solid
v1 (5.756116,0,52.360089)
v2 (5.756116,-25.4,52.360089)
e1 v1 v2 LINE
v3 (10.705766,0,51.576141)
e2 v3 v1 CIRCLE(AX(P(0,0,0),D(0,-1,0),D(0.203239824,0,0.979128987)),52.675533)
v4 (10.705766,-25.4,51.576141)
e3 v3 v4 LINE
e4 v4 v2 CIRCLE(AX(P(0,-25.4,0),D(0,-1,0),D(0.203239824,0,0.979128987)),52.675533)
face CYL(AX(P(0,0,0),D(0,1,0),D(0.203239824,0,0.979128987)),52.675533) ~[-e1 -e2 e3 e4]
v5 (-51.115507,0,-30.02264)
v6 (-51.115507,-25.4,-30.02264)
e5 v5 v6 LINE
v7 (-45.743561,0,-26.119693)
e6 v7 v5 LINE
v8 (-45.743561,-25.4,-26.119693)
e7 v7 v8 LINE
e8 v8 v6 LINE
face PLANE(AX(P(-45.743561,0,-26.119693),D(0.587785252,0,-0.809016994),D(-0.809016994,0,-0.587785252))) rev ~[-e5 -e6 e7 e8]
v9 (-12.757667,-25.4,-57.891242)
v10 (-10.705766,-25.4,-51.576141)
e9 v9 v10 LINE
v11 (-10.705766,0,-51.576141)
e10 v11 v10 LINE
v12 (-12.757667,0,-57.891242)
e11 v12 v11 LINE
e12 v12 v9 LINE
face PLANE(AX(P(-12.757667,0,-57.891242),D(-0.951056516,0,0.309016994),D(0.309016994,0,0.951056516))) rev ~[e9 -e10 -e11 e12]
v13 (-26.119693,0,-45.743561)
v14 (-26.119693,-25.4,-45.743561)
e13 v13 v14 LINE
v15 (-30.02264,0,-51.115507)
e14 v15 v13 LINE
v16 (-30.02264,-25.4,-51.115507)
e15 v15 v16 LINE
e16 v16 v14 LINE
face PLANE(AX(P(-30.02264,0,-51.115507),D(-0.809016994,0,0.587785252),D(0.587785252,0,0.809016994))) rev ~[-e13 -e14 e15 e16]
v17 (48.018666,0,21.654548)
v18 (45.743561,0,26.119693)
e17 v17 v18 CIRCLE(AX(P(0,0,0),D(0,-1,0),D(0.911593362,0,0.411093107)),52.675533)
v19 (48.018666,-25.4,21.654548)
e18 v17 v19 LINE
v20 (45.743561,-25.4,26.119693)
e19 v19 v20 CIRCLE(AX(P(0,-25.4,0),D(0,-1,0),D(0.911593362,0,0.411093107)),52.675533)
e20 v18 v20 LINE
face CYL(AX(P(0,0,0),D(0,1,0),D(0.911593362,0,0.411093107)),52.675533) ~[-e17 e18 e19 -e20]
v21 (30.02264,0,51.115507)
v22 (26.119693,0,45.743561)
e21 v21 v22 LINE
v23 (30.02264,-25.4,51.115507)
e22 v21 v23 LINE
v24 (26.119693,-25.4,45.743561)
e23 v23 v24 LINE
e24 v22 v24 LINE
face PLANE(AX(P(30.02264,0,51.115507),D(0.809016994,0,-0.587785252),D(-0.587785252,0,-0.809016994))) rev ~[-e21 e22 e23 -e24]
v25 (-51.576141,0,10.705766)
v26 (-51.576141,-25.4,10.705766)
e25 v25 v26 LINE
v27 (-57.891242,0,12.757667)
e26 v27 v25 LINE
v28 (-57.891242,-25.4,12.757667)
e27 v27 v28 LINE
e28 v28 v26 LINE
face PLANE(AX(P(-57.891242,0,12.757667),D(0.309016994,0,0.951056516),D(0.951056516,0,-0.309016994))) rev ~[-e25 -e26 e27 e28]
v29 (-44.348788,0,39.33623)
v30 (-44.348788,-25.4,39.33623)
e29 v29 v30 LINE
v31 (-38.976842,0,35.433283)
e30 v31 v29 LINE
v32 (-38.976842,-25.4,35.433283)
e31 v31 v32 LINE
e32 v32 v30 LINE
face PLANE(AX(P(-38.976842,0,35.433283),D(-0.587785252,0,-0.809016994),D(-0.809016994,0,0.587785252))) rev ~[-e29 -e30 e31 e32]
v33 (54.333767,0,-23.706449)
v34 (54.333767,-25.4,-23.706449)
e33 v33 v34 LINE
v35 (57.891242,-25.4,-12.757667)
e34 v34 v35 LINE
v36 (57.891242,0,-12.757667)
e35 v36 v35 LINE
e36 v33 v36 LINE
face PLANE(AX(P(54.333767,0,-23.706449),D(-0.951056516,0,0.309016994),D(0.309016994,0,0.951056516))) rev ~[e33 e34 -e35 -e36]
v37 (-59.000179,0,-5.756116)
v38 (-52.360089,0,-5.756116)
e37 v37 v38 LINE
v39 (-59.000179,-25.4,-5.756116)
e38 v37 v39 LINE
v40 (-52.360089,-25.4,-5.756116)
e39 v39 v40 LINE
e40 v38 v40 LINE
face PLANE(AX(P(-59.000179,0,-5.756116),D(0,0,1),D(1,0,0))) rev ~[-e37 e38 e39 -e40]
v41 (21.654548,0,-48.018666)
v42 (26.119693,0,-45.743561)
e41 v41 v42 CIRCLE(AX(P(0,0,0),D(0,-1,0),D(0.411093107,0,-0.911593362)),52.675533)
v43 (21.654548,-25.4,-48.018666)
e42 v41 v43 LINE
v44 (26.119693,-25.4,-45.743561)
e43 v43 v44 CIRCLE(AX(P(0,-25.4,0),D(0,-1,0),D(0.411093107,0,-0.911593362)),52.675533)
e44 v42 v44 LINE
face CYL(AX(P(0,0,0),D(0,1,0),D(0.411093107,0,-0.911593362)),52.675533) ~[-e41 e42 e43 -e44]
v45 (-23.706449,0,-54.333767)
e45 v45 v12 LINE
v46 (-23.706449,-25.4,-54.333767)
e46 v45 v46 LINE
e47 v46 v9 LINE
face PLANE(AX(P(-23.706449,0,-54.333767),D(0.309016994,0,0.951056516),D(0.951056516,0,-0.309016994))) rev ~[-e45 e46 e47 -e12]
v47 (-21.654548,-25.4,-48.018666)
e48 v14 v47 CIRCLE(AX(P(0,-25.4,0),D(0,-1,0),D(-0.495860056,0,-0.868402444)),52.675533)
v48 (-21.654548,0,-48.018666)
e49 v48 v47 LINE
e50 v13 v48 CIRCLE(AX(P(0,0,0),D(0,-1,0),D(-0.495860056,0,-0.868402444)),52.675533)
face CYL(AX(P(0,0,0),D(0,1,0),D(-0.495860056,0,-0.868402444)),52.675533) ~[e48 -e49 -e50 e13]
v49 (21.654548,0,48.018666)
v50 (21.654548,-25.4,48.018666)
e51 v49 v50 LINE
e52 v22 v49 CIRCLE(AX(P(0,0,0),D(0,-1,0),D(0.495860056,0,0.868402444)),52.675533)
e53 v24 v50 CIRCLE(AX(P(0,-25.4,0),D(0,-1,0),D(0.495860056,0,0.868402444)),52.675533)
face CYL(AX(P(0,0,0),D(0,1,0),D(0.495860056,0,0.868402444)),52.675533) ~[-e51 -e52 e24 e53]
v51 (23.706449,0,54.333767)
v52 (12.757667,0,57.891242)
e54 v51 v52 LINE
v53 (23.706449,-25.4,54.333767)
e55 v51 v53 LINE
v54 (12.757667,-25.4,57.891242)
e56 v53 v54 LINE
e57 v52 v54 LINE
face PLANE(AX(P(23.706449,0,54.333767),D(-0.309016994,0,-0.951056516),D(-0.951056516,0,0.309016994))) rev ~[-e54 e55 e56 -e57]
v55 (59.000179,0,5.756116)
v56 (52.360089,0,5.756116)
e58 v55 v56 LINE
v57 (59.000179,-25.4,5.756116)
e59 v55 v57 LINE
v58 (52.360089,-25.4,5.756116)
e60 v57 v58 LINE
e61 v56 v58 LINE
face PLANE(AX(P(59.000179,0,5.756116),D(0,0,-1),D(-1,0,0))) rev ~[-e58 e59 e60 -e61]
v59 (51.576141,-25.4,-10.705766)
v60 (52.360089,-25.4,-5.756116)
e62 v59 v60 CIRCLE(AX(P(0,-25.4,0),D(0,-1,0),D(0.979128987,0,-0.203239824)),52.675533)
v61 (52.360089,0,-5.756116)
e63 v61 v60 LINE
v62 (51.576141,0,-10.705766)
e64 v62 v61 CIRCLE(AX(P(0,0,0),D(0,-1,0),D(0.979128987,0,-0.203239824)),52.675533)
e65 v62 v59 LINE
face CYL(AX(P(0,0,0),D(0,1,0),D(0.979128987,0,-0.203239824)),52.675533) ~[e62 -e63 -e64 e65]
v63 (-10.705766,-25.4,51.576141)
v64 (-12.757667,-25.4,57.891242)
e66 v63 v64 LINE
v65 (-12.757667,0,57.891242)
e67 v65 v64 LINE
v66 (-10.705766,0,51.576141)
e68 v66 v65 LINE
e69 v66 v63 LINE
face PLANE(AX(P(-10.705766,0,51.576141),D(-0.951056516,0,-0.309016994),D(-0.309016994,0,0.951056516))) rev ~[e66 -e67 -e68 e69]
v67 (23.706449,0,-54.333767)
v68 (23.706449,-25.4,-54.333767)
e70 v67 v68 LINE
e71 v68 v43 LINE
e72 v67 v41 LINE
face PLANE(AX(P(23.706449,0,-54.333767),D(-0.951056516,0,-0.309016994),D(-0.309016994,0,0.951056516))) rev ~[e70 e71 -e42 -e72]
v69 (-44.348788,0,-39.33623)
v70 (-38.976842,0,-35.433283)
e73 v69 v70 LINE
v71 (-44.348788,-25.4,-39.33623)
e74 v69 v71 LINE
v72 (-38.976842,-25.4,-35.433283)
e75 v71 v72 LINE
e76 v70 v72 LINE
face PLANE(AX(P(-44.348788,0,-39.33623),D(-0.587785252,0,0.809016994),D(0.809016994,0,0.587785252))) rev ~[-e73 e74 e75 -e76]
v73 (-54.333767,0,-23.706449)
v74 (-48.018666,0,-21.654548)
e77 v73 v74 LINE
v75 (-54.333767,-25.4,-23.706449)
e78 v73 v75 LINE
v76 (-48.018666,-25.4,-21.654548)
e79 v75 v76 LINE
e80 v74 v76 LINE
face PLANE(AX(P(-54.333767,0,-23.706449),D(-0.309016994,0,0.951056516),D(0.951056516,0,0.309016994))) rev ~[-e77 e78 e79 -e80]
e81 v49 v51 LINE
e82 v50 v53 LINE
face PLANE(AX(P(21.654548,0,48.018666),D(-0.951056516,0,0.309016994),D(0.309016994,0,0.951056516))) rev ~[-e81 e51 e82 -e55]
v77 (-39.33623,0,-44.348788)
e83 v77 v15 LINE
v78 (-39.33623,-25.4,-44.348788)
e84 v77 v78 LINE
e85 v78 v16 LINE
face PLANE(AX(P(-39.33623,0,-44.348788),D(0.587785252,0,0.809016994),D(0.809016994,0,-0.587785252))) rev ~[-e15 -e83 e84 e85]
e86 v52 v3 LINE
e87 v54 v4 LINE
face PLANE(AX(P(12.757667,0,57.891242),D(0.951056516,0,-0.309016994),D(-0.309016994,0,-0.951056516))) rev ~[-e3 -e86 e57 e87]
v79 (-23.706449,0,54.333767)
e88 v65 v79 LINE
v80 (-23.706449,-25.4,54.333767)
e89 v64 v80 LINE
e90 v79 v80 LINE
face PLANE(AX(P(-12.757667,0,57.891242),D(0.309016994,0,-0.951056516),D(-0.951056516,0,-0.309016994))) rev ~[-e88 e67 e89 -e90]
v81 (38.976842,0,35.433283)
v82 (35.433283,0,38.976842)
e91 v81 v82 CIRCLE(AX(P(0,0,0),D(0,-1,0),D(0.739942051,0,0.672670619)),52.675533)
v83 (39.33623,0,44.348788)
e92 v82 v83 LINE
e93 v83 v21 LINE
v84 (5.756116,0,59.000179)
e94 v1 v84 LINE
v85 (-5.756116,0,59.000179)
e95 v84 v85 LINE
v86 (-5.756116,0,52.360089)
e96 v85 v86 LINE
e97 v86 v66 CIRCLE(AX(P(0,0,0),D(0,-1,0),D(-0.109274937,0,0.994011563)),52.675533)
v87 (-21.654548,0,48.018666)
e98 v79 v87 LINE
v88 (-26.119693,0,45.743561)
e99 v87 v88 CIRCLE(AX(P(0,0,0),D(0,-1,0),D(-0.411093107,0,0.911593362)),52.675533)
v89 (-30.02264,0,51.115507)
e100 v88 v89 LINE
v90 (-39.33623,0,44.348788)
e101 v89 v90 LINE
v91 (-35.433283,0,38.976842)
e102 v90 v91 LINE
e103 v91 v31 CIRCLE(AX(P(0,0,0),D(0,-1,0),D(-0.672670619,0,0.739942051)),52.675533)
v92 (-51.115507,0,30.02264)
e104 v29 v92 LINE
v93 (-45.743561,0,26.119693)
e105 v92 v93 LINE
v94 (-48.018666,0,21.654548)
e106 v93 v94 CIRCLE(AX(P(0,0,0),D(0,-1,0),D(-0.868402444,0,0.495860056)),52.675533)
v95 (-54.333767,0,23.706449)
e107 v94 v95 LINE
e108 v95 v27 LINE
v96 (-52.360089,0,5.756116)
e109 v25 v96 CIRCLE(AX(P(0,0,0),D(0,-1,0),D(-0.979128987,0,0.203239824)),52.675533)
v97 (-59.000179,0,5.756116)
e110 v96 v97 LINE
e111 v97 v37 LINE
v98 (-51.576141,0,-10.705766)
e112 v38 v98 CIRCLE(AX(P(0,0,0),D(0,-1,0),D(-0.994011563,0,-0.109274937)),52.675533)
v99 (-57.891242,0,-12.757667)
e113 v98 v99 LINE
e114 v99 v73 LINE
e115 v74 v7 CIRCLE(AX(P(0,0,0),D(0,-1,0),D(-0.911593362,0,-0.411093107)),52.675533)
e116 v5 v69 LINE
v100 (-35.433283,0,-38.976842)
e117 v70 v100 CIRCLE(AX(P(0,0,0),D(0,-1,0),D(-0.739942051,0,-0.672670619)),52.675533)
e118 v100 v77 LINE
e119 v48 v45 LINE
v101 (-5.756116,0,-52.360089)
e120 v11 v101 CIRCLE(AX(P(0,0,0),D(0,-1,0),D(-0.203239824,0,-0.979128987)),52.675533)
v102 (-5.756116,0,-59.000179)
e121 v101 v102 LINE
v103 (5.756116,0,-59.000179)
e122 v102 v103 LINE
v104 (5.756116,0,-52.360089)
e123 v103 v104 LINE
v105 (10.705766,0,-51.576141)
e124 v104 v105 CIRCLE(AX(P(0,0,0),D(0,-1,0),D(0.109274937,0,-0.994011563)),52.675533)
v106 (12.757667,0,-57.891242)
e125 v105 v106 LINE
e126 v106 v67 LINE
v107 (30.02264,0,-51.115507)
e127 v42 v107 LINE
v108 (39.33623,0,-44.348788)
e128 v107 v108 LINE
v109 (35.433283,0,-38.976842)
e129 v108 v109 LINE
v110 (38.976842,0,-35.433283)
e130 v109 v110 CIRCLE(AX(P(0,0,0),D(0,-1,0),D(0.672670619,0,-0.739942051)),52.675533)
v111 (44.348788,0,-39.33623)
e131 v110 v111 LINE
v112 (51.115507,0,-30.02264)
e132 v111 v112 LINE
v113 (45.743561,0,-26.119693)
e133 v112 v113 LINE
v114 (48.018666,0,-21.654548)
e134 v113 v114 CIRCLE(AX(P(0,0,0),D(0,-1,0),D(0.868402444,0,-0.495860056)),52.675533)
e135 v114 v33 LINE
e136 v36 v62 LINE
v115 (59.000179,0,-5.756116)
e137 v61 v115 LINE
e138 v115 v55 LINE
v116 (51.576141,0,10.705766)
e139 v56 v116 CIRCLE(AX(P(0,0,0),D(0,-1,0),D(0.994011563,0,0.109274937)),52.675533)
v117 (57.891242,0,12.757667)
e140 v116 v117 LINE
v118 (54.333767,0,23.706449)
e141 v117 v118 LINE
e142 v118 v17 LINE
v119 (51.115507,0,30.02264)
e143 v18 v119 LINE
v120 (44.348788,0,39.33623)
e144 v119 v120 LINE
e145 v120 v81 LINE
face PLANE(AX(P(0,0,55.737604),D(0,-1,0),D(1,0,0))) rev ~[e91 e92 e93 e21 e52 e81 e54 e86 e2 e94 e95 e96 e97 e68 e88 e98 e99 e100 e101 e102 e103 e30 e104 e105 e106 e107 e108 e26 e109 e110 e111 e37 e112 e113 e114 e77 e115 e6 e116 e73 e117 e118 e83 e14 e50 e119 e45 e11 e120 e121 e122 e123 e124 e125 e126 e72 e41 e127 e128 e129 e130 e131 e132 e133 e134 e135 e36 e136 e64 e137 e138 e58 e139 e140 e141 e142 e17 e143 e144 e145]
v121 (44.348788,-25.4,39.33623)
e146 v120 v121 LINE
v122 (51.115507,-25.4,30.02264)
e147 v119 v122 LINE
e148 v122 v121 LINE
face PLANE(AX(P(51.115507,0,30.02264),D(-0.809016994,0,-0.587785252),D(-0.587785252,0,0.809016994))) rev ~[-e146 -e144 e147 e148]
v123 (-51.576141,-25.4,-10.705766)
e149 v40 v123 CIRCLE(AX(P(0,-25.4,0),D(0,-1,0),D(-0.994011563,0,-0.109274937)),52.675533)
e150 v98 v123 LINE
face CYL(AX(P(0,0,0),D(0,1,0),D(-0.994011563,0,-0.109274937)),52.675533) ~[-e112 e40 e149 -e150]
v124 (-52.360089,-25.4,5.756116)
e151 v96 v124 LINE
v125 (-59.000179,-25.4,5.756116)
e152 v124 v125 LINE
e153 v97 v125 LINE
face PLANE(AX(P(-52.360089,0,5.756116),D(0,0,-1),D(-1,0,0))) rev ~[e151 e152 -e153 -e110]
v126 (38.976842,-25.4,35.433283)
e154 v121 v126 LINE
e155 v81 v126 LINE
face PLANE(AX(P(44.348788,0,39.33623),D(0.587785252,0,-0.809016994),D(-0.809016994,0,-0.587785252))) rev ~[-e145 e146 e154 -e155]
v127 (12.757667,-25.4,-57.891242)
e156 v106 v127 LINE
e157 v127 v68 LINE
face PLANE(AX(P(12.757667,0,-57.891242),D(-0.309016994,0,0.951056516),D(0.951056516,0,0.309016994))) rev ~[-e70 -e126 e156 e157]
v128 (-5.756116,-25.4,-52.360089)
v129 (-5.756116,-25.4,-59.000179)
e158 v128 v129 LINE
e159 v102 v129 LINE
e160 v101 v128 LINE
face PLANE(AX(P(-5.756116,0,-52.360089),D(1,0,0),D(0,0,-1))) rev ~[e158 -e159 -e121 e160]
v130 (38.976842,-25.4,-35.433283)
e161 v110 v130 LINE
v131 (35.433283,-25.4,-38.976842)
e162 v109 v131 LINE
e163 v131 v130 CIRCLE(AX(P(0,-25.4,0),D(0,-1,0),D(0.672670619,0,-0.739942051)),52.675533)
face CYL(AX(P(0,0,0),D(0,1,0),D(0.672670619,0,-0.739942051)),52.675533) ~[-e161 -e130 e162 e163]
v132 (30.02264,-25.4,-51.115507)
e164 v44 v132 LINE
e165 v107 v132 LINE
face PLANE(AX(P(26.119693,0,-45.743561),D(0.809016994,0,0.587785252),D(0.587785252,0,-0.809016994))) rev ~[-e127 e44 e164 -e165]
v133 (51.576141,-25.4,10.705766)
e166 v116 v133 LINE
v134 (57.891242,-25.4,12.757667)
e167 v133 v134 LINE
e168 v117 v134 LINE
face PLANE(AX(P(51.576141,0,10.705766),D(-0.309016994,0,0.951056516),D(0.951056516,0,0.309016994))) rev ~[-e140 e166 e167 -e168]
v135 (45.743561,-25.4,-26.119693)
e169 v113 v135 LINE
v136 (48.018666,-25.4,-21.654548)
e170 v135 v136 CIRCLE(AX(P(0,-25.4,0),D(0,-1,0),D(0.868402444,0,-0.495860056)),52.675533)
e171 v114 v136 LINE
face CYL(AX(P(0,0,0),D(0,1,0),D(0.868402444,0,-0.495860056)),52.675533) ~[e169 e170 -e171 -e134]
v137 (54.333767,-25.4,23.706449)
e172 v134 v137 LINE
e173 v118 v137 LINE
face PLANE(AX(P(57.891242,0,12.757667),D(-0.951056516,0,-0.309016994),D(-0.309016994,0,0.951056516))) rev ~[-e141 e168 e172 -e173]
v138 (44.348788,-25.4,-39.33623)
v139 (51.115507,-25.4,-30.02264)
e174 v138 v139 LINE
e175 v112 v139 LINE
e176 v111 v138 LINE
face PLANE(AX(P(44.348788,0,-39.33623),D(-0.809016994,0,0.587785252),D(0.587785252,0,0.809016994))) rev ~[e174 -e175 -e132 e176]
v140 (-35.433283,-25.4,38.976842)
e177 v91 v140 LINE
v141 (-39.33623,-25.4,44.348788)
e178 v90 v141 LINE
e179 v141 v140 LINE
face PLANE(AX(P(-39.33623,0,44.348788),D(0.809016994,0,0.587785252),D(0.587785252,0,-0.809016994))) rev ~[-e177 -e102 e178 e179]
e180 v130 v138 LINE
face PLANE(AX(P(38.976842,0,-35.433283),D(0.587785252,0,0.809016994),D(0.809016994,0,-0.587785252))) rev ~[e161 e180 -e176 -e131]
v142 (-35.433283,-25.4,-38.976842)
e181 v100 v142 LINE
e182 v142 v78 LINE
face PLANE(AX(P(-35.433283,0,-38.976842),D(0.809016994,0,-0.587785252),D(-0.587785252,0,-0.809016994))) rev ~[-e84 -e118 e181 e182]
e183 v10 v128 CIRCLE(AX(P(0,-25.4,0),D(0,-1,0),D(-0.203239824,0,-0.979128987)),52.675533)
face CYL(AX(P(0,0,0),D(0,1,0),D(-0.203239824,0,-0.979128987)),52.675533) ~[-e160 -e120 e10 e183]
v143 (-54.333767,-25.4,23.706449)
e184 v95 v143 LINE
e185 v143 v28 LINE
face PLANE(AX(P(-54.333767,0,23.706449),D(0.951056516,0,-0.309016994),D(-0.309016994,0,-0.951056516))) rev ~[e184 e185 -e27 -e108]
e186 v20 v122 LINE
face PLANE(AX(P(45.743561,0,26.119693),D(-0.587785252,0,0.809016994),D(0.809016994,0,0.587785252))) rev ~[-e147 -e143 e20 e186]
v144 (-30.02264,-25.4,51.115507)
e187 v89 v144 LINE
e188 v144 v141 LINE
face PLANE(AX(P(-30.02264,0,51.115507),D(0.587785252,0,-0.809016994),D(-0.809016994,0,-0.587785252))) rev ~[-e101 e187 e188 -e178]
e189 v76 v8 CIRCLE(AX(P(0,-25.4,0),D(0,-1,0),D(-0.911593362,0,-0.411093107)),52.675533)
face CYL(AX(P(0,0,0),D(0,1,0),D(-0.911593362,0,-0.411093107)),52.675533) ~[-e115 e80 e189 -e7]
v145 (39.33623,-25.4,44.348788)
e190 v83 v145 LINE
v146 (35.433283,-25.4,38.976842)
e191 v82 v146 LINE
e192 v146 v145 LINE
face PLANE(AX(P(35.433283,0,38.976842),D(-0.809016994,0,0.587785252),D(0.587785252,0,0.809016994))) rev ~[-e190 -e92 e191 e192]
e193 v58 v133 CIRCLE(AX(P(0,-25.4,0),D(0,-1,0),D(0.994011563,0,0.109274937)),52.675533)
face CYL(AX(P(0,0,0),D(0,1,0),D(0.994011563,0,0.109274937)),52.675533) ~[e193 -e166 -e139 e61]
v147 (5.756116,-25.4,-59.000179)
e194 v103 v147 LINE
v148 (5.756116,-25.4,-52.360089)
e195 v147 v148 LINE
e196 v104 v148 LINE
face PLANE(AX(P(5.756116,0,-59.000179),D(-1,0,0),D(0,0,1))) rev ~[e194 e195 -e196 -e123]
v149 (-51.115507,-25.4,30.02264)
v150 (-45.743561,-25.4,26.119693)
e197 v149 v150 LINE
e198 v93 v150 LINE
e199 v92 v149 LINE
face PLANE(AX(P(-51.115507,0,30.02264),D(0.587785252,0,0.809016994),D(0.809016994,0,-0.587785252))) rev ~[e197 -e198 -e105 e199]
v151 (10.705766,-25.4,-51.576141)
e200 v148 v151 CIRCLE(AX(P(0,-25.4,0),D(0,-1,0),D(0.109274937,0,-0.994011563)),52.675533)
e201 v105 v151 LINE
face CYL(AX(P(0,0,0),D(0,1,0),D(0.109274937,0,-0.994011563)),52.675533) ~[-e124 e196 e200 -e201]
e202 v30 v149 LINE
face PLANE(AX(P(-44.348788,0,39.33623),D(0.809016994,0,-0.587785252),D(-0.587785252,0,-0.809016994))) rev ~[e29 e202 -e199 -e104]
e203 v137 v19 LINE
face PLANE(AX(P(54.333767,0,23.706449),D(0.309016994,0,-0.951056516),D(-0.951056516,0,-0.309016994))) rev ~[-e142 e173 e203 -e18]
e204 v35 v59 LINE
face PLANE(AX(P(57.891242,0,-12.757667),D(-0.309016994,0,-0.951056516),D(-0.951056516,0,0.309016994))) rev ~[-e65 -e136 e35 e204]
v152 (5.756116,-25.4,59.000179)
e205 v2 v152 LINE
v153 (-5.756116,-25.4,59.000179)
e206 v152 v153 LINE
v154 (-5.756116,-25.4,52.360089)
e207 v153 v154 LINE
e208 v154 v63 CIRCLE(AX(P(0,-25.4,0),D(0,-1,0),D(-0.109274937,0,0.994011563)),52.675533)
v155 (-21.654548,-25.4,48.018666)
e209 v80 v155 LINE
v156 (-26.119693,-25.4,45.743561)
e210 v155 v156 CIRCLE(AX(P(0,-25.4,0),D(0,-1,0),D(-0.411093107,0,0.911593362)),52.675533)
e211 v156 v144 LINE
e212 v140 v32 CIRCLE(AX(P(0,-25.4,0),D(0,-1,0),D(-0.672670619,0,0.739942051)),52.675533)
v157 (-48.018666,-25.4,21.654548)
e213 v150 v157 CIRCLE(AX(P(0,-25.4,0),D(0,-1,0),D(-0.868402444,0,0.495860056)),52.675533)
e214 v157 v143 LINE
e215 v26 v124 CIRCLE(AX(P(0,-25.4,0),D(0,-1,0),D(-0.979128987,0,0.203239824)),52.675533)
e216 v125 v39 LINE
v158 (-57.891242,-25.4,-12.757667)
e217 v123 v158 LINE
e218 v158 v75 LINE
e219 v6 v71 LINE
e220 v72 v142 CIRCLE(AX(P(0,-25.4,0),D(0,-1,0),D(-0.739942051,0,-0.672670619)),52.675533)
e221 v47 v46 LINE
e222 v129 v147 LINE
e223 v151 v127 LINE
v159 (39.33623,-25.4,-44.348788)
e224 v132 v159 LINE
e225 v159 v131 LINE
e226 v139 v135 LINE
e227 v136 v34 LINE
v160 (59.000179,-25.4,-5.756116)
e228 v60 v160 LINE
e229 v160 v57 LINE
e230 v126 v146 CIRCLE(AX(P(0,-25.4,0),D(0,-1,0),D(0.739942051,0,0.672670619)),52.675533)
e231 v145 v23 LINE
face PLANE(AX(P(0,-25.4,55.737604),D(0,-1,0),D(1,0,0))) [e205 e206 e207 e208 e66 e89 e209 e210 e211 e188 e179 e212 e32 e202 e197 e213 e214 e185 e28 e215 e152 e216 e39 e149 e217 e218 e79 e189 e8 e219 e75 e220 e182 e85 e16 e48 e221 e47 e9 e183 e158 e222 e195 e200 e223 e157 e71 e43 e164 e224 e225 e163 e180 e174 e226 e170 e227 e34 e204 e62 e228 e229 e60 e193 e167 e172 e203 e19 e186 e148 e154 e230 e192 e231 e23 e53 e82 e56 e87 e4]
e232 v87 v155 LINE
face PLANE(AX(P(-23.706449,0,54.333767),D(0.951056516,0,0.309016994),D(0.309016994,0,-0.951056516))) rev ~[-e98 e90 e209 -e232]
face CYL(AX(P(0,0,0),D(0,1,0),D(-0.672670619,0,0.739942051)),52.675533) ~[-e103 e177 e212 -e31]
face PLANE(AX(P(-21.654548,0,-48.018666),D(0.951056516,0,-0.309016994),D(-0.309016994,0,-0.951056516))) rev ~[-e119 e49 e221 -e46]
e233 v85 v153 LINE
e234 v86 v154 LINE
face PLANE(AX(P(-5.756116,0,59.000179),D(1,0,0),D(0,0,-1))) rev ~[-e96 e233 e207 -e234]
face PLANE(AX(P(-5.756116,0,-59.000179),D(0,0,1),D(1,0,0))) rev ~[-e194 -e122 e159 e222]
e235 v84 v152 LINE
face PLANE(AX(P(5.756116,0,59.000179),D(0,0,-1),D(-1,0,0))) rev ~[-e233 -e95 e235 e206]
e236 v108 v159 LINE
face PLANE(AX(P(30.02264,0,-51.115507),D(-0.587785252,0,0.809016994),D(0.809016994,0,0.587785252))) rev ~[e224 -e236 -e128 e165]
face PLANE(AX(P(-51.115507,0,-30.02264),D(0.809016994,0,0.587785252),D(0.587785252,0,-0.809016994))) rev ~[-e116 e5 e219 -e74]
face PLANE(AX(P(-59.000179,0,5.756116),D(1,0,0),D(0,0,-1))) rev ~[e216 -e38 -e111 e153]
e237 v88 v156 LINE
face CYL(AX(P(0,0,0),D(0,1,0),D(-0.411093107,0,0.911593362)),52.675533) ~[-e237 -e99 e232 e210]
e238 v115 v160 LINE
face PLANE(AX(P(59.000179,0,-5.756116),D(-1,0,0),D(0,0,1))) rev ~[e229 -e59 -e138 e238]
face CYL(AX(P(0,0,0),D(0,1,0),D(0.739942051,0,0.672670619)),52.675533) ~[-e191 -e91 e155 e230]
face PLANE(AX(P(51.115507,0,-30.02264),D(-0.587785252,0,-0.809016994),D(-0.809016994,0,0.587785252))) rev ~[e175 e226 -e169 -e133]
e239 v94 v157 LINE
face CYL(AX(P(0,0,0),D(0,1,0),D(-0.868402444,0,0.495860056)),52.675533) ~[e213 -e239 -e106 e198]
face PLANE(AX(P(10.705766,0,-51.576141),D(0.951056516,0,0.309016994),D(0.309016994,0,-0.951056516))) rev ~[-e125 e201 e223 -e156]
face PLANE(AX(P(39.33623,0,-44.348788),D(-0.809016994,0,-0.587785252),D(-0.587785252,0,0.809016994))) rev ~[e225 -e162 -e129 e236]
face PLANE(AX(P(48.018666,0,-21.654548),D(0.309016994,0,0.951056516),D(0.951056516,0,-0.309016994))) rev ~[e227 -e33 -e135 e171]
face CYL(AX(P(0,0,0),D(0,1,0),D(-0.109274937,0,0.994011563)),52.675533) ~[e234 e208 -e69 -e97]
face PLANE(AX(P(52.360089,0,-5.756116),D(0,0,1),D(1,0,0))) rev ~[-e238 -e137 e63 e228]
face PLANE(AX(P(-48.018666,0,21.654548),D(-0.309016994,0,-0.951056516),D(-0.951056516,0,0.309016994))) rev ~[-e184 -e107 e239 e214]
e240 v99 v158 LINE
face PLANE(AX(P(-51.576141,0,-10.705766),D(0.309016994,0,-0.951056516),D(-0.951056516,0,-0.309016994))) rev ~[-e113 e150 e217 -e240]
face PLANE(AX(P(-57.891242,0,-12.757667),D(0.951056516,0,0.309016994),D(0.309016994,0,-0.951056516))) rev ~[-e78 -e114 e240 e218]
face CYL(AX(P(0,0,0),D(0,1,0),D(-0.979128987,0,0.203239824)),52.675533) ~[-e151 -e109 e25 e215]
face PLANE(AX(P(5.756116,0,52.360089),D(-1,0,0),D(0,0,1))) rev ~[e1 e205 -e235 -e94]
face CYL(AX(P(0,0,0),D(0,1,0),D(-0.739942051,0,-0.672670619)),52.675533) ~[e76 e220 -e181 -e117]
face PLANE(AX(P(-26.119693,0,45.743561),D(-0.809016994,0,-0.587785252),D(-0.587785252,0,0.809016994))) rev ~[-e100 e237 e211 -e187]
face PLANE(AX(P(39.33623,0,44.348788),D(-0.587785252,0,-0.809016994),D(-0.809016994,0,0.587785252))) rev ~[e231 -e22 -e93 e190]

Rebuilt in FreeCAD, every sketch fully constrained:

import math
import FreeCAD as App
import Part
import Sketcher
Q = App.Units.Quantity

doc = App.newDocument("Part")
params = doc.addObject("Spreadsheet::Sheet", "Params")
for row, (alias, value) in enumerate([
    ("pad1_length", "1 in"),
], start=1):
    params.set(f"A{row}", alias)
    params.set(f"B{row}", "=" + value)
    params.setAlias(f"B{row}", alias)

body = doc.addObject("PartDesign::Body", "Body")

sketch1 = doc.addObject("Sketcher::SketchObject", "Sketch")
body.addObject(sketch1)
sketch1.AttachmentSupport = (doc.XZ_Plane, [""])
sketch1.MapMode = "FlatFace"
sketch1.addGeometry(Part.LineSegment(App.Vector(6, 52, 0), App.Vector(6, 59, 0)), False)
sketch1.addGeometry(Part.LineSegment(App.Vector(6, 59, 0), App.Vector(-6, 59, 0)), False)
sketch1.addGeometry(Part.LineSegment(App.Vector(-6, 59, 0), App.Vector(-6, 52, 0)), False)
sketch1.addGeometry(Part.ArcOfCircle(Part.Circle(App.Vector(0, 0, 0), App.Vector(0, 0, 1), 53), math.radians(96.27), math.radians(101.73)), False)
sketch1.addGeometry(Part.LineSegment(App.Vector(-11, 52, 0), App.Vector(-13, 58, 0)), False)
sketch1.addGeometry(Part.LineSegment(App.Vector(-13, 58, 0), App.Vector(-24, 54, 0)), False)
sketch1.addGeometry(Part.LineSegment(App.Vector(-24, 54, 0), App.Vector(-22, 48, 0)), False)
sketch1.addGeometry(Part.ArcOfCircle(Part.Circle(App.Vector(0, 0, 0), App.Vector(0, 0, 1), 53), math.radians(114.27), math.radians(119.73)), False)
sketch1.addGeometry(Part.LineSegment(App.Vector(-26, 46, 0), App.Vector(-30, 51, 0)), False)
sketch1.addGeometry(Part.LineSegment(App.Vector(-30, 51, 0), App.Vector(-39, 44, 0)), False)
sketch1.addGeometry(Part.LineSegment(App.Vector(-39, 44, 0), App.Vector(-35, 39, 0)), False)
sketch1.addGeometry(Part.ArcOfCircle(Part.Circle(App.Vector(0, 0, 0), App.Vector(0, 0, 1), 53), math.radians(132.27), math.radians(137.73)), False)
sketch1.addGeometry(Part.LineSegment(App.Vector(-39, 35, 0), App.Vector(-44, 39, 0)), False)
sketch1.addGeometry(Part.LineSegment(App.Vector(-44, 39, 0), App.Vector(-51, 30, 0)), False)
sketch1.addGeometry(Part.LineSegment(App.Vector(-51, 30, 0), App.Vector(-46, 26, 0)), False)
sketch1.addGeometry(Part.ArcOfCircle(Part.Circle(App.Vector(0, 0, 0), App.Vector(0, 0, 1), 53), math.radians(150.27), math.radians(155.73)), False)
sketch1.addGeometry(Part.LineSegment(App.Vector(-48, 22, 0), App.Vector(-54, 24, 0)), False)
sketch1.addGeometry(Part.LineSegment(App.Vector(-54, 24, 0), App.Vector(-58, 13, 0)), False)
sketch1.addGeometry(Part.LineSegment(App.Vector(-58, 13, 0), App.Vector(-52, 11, 0)), False)
sketch1.addGeometry(Part.ArcOfCircle(Part.Circle(App.Vector(0, 0, 0), App.Vector(0, 0, 1), 53), math.radians(168.27), math.radians(173.73)), False)
sketch1.addGeometry(Part.LineSegment(App.Vector(-52, 6, 0), App.Vector(-59, 6, 0)), False)
sketch1.addGeometry(Part.LineSegment(App.Vector(-59, 6, 0), App.Vector(-59, -6, 0)), False)
sketch1.addGeometry(Part.LineSegment(App.Vector(-59, -6, 0), App.Vector(-52, -6, 0)), False)
sketch1.addGeometry(Part.ArcOfCircle(Part.Circle(App.Vector(0, 0, 0), App.Vector(0, 0, 1), 53), math.radians(-173.73), math.radians(-168.27)), False)
sketch1.addGeometry(Part.LineSegment(App.Vector(-52, -11, 0), App.Vector(-58, -13, 0)), False)
sketch1.addGeometry(Part.LineSegment(App.Vector(-58, -13, 0), App.Vector(-54, -24, 0)), False)
sketch1.addGeometry(Part.LineSegment(App.Vector(-54, -24, 0), App.Vector(-48, -22, 0)), False)
sketch1.addGeometry(Part.ArcOfCircle(Part.Circle(App.Vector(0, 0, 0), App.Vector(0, 0, 1), 53), math.radians(-155.73), math.radians(-150.27)), False)
sketch1.addGeometry(Part.LineSegment(App.Vector(-46, -26, 0), App.Vector(-51, -30, 0)), False)
sketch1.addGeometry(Part.LineSegment(App.Vector(-51, -30, 0), App.Vector(-44, -39, 0)), False)
sketch1.addGeometry(Part.LineSegment(App.Vector(-44, -39, 0), App.Vector(-39, -35, 0)), False)
sketch1.addGeometry(Part.ArcOfCircle(Part.Circle(App.Vector(0, 0, 0), App.Vector(0, 0, 1), 53), math.radians(-137.73), math.radians(-132.27)), False)
sketch1.addGeometry(Part.LineSegment(App.Vector(-35, -39, 0), App.Vector(-39, -44, 0)), False)
sketch1.addGeometry(Part.LineSegment(App.Vector(-39, -44, 0), App.Vector(-30, -51, 0)), False)
sketch1.addGeometry(Part.LineSegment(App.Vector(-30, -51, 0), App.Vector(-26, -46, 0)), False)
sketch1.addGeometry(Part.ArcOfCircle(Part.Circle(App.Vector(0, 0, 0), App.Vector(0, 0, 1), 53), math.radians(-119.73), math.radians(-114.27)), False)
sketch1.addGeometry(Part.LineSegment(App.Vector(-22, -48, 0), App.Vector(-24, -54, 0)), False)
sketch1.addGeometry(Part.LineSegment(App.Vector(-24, -54, 0), App.Vector(-13, -58, 0)), False)
sketch1.addGeometry(Part.LineSegment(App.Vector(-13, -58, 0), App.Vector(-11, -52, 0)), False)
sketch1.addGeometry(Part.ArcOfCircle(Part.Circle(App.Vector(0, 0, 0), App.Vector(0, 0, 1), 53), math.radians(-101.73), math.radians(-96.27)), False)
sketch1.addGeometry(Part.LineSegment(App.Vector(-6, -52, 0), App.Vector(-6, -59, 0)), False)
sketch1.addGeometry(Part.LineSegment(App.Vector(-6, -59, 0), App.Vector(6, -59, 0)), False)
sketch1.addGeometry(Part.LineSegment(App.Vector(6, -59, 0), App.Vector(6, -52, 0)), False)
sketch1.addGeometry(Part.ArcOfCircle(Part.Circle(App.Vector(0, 0, 0), App.Vector(0, 0, 1), 53), math.radians(-83.73), math.radians(-78.27)), False)
sketch1.addGeometry(Part.LineSegment(App.Vector(11, -52, 0), App.Vector(13, -58, 0)), False)
sketch1.addGeometry(Part.LineSegment(App.Vector(13, -58, 0), App.Vector(24, -54, 0)), False)
sketch1.addGeometry(Part.LineSegment(App.Vector(24, -54, 0), App.Vector(22, -48, 0)), False)
sketch1.addGeometry(Part.ArcOfCircle(Part.Circle(App.Vector(0, 0, 0), App.Vector(0, 0, 1), 53), math.radians(-65.73), math.radians(-60.27)), False)
sketch1.addGeometry(Part.LineSegment(App.Vector(26, -46, 0), App.Vector(30, -51, 0)), False)
sketch1.addGeometry(Part.LineSegment(App.Vector(30, -51, 0), App.Vector(39, -44, 0)), False)
sketch1.addGeometry(Part.LineSegment(App.Vector(39, -44, 0), App.Vector(35, -39, 0)), False)
sketch1.addGeometry(Part.ArcOfCircle(Part.Circle(App.Vector(0, 0, 0), App.Vector(0, 0, 1), 53), math.radians(-47.73), math.radians(-42.27)), False)
sketch1.addGeometry(Part.LineSegment(App.Vector(39, -35, 0), App.Vector(44, -39, 0)), False)
sketch1.addGeometry(Part.LineSegment(App.Vector(44, -39, 0), App.Vector(51, -30, 0)), False)
sketch1.addGeometry(Part.LineSegment(App.Vector(51, -30, 0), App.Vector(46, -26, 0)), False)
sketch1.addGeometry(Part.ArcOfCircle(Part.Circle(App.Vector(0, 0, 0), App.Vector(0, 0, 1), 53), math.radians(-29.73), math.radians(-24.27)), False)
sketch1.addGeometry(Part.LineSegment(App.Vector(48, -22, 0), App.Vector(54, -24, 0)), False)
sketch1.addGeometry(Part.LineSegment(App.Vector(54, -24, 0), App.Vector(58, -13, 0)), False)
sketch1.addGeometry(Part.LineSegment(App.Vector(58, -13, 0), App.Vector(52, -11, 0)), False)
sketch1.addGeometry(Part.ArcOfCircle(Part.Circle(App.Vector(0, 0, 0), App.Vector(0, 0, 1), 53), math.radians(-11.73), math.radians(-6.27)), False)
sketch1.addGeometry(Part.LineSegment(App.Vector(52, -6, 0), App.Vector(59, -6, 0)), False)
sketch1.addGeometry(Part.LineSegment(App.Vector(59, -6, 0), App.Vector(59, 6, 0)), False)
sketch1.addGeometry(Part.LineSegment(App.Vector(59, 6, 0), App.Vector(52, 6, 0)), False)
sketch1.addGeometry(Part.ArcOfCircle(Part.Circle(App.Vector(0, 0, 0), App.Vector(0, 0, 1), 53), math.radians(6.27), math.radians(11.73)), False)
sketch1.addGeometry(Part.LineSegment(App.Vector(52, 11, 0), App.Vector(58, 13, 0)), False)
sketch1.addGeometry(Part.LineSegment(App.Vector(58, 13, 0), App.Vector(54, 24, 0)), False)
sketch1.addGeometry(Part.LineSegment(App.Vector(54, 24, 0), App.Vector(48, 22, 0)), False)
sketch1.addGeometry(Part.ArcOfCircle(Part.Circle(App.Vector(0, 0, 0), App.Vector(0, 0, 1), 53), math.radians(24.27), math.radians(29.73)), False)
sketch1.addGeometry(Part.LineSegment(App.Vector(46, 26, 0), App.Vector(51, 30, 0)), False)
sketch1.addGeometry(Part.LineSegment(App.Vector(51, 30, 0), App.Vector(44, 39, 0)), False)
sketch1.addGeometry(Part.LineSegment(App.Vector(44, 39, 0), App.Vector(39, 35, 0)), False)
sketch1.addGeometry(Part.ArcOfCircle(Part.Circle(App.Vector(0, 0, 0), App.Vector(0, 0, 1), 53), math.radians(42.27), math.radians(47.73)), False)
sketch1.addGeometry(Part.LineSegment(App.Vector(35, 39, 0), App.Vector(39, 44, 0)), False)
sketch1.addGeometry(Part.LineSegment(App.Vector(39, 44, 0), App.Vector(30, 51, 0)), False)
sketch1.addGeometry(Part.LineSegment(App.Vector(30, 51, 0), App.Vector(26, 46, 0)), False)
sketch1.addGeometry(Part.ArcOfCircle(Part.Circle(App.Vector(0, 0, 0), App.Vector(0, 0, 1), 53), math.radians(60.27), math.radians(65.73)), False)
sketch1.addGeometry(Part.LineSegment(App.Vector(22, 48, 0), App.Vector(24, 54, 0)), False)
sketch1.addGeometry(Part.LineSegment(App.Vector(24, 54, 0), App.Vector(13, 58, 0)), False)
sketch1.addGeometry(Part.LineSegment(App.Vector(13, 58, 0), App.Vector(11, 52, 0)), False)
sketch1.addGeometry(Part.ArcOfCircle(Part.Circle(App.Vector(0, 0, 0), App.Vector(0, 0, 1), 53), math.radians(78.27), math.radians(83.73)), False)
sketch1.addConstraint(Sketcher.Constraint("Coincident", 0, 2, 1, 1))
sketch1.addConstraint(Sketcher.Constraint("Coincident", 1, 2, 2, 1))
sketch1.addConstraint(Sketcher.Constraint("Coincident", 2, 2, 3, 1))
sketch1.addConstraint(Sketcher.Constraint("Coincident", 3, 2, 4, 1))
sketch1.addConstraint(Sketcher.Constraint("Coincident", 4, 2, 5, 1))
sketch1.addConstraint(Sketcher.Constraint("Coincident", 5, 2, 6, 1))
sketch1.addConstraint(Sketcher.Constraint("Coincident", 6, 2, 7, 1))
sketch1.addConstraint(Sketcher.Constraint("Coincident", 7, 2, 8, 1))
sketch1.addConstraint(Sketcher.Constraint("Coincident", 8, 2, 9, 1))
sketch1.addConstraint(Sketcher.Constraint("Coincident", 9, 2, 10, 1))
sketch1.addConstraint(Sketcher.Constraint("Coincident", 10, 2, 11, 1))
sketch1.addConstraint(Sketcher.Constraint("Coincident", 11, 2, 12, 1))
sketch1.addConstraint(Sketcher.Constraint("Coincident", 12, 2, 13, 1))
sketch1.addConstraint(Sketcher.Constraint("Coincident", 13, 2, 14, 1))
sketch1.addConstraint(Sketcher.Constraint("Coincident", 14, 2, 15, 1))
sketch1.addConstraint(Sketcher.Constraint("Coincident", 15, 2, 16, 1))
sketch1.addConstraint(Sketcher.Constraint("Coincident", 16, 2, 17, 1))
sketch1.addConstraint(Sketcher.Constraint("Coincident", 17, 2, 18, 1))
sketch1.addConstraint(Sketcher.Constraint("Coincident", 18, 2, 19, 1))
sketch1.addConstraint(Sketcher.Constraint("Coincident", 19, 2, 20, 1))
sketch1.addConstraint(Sketcher.Constraint("Coincident", 20, 2, 21, 1))
sketch1.addConstraint(Sketcher.Constraint("Coincident", 21, 2, 22, 1))
sketch1.addConstraint(Sketcher.Constraint("Coincident", 22, 2, 23, 1))
sketch1.addConstraint(Sketcher.Constraint("Coincident", 23, 2, 24, 1))
sketch1.addConstraint(Sketcher.Constraint("Coincident", 24, 2, 25, 1))
sketch1.addConstraint(Sketcher.Constraint("Coincident", 25, 2, 26, 1))
sketch1.addConstraint(Sketcher.Constraint("Coincident", 26, 2, 27, 1))
sketch1.addConstraint(Sketcher.Constraint("Coincident", 27, 2, 28, 1))
sketch1.addConstraint(Sketcher.Constraint("Coincident", 28, 2, 29, 1))
sketch1.addConstraint(Sketcher.Constraint("Coincident", 29, 2, 30, 1))
sketch1.addConstraint(Sketcher.Constraint("Coincident", 30, 2, 31, 1))
sketch1.addConstraint(Sketcher.Constraint("Coincident", 31, 2, 32, 1))
sketch1.addConstraint(Sketcher.Constraint("Coincident", 32, 2, 33, 1))
sketch1.addConstraint(Sketcher.Constraint("Coincident", 33, 2, 34, 1))
sketch1.addConstraint(Sketcher.Constraint("Coincident", 34, 2, 35, 1))
sketch1.addConstraint(Sketcher.Constraint("Coincident", 35, 2, 36, 1))
sketch1.addConstraint(Sketcher.Constraint("Coincident", 36, 2, 37, 1))
sketch1.addConstraint(Sketcher.Constraint("Coincident", 37, 2, 38, 1))
sketch1.addConstraint(Sketcher.Constraint("Coincident", 38, 2, 39, 1))
sketch1.addConstraint(Sketcher.Constraint("Coincident", 39, 2, 40, 1))
sketch1.addConstraint(Sketcher.Constraint("Coincident", 40, 2, 41, 1))
sketch1.addConstraint(Sketcher.Constraint("Coincident", 41, 2, 42, 1))
sketch1.addConstraint(Sketcher.Constraint("Coincident", 42, 2, 43, 1))
sketch1.addConstraint(Sketcher.Constraint("Coincident", 43, 2, 44, 1))
sketch1.addConstraint(Sketcher.Constraint("Coincident", 44, 2, 45, 1))
sketch1.addConstraint(Sketcher.Constraint("Coincident", 45, 2, 46, 1))
sketch1.addConstraint(Sketcher.Constraint("Coincident", 46, 2, 47, 1))
sketch1.addConstraint(Sketcher.Constraint("Coincident", 47, 2, 48, 1))
sketch1.addConstraint(Sketcher.Constraint("Coincident", 48, 2, 49, 1))
sketch1.addConstraint(Sketcher.Constraint("Coincident", 49, 2, 50, 1))
sketch1.addConstraint(Sketcher.Constraint("Coincident", 50, 2, 51, 1))
sketch1.addConstraint(Sketcher.Constraint("Coincident", 51, 2, 52, 1))
sketch1.addConstraint(Sketcher.Constraint("Coincident", 52, 2, 53, 1))
sketch1.addConstraint(Sketcher.Constraint("Coincident", 53, 2, 54, 1))
sketch1.addConstraint(Sketcher.Constraint("Coincident", 54, 2, 55, 1))
sketch1.addConstraint(Sketcher.Constraint("Coincident", 55, 2, 56, 1))
sketch1.addConstraint(Sketcher.Constraint("Coincident", 56, 2, 57, 1))
sketch1.addConstraint(Sketcher.Constraint("Coincident", 57, 2, 58, 1))
sketch1.addConstraint(Sketcher.Constraint("Coincident", 58, 2, 59, 1))
sketch1.addConstraint(Sketcher.Constraint("Coincident", 59, 2, 60, 1))
sketch1.addConstraint(Sketcher.Constraint("Coincident", 60, 2, 61, 1))
sketch1.addConstraint(Sketcher.Constraint("Coincident", 61, 2, 62, 1))
sketch1.addConstraint(Sketcher.Constraint("Coincident", 62, 2, 63, 1))
sketch1.addConstraint(Sketcher.Constraint("Coincident", 63, 2, 64, 1))
sketch1.addConstraint(Sketcher.Constraint("Coincident", 64, 2, 65, 1))
sketch1.addConstraint(Sketcher.Constraint("Coincident", 65, 2, 66, 1))
sketch1.addConstraint(Sketcher.Constraint("Coincident", 66, 2, 67, 1))
sketch1.addConstraint(Sketcher.Constraint("Coincident", 67, 2, 68, 1))
sketch1.addConstraint(Sketcher.Constraint("Coincident", 68, 2, 69, 1))
sketch1.addConstraint(Sketcher.Constraint("Coincident", 69, 2, 70, 1))
sketch1.addConstraint(Sketcher.Constraint("Coincident", 70, 2, 71, 1))
sketch1.addConstraint(Sketcher.Constraint("Coincident", 71, 2, 72, 1))
sketch1.addConstraint(Sketcher.Constraint("Coincident", 72, 2, 73, 1))
sketch1.addConstraint(Sketcher.Constraint("Coincident", 73, 2, 74, 1))
sketch1.addConstraint(Sketcher.Constraint("Coincident", 74, 2, 75, 1))
sketch1.addConstraint(Sketcher.Constraint("Coincident", 75, 2, 76, 1))
sketch1.addConstraint(Sketcher.Constraint("Coincident", 76, 2, 77, 1))
sketch1.addConstraint(Sketcher.Constraint("Coincident", 77, 2, 78, 1))
sketch1.addConstraint(Sketcher.Constraint("Coincident", 78, 2, 79, 1))
sketch1.addConstraint(Sketcher.Constraint("Coincident", 79, 2, 0, 1))
sketch1.addConstraint(Sketcher.Constraint("Vertical", 0))
sketch1.addConstraint(Sketcher.Constraint("Horizontal", 1))
sketch1.addConstraint(Sketcher.Constraint("Vertical", 2))
sketch1.addConstraint(Sketcher.Constraint("Horizontal", 20))
sketch1.addConstraint(Sketcher.Constraint("Vertical", 21))
sketch1.addConstraint(Sketcher.Constraint("Horizontal", 22))
sketch1.addConstraint(Sketcher.Constraint("Vertical", 40))
sketch1.addConstraint(Sketcher.Constraint("Horizontal", 41))
sketch1.addConstraint(Sketcher.Constraint("Vertical", 42))
sketch1.addConstraint(Sketcher.Constraint("Horizontal", 60))
sketch1.addConstraint(Sketcher.Constraint("Vertical", 61))
sketch1.addConstraint(Sketcher.Constraint("Horizontal", 62))
sketch1.addConstraint(Sketcher.Constraint("Coincident", 3, 3, -1, 1))
sketch1.addConstraint(Sketcher.Constraint("Coincident", 7, 3, -1, 1))
sketch1.addConstraint(Sketcher.Constraint("Coincident", 11, 3, -1, 1))
sketch1.addConstraint(Sketcher.Constraint("Coincident", 15, 3, -1, 1))
sketch1.addConstraint(Sketcher.Constraint("Coincident", 19, 3, -1, 1))
sketch1.addConstraint(Sketcher.Constraint("Coincident", 23, 3, -1, 1))
sketch1.addConstraint(Sketcher.Constraint("Coincident", 27, 3, -1, 1))
sketch1.addConstraint(Sketcher.Constraint("Coincident", 31, 3, -1, 1))
sketch1.addConstraint(Sketcher.Constraint("Coincident", 35, 3, -1, 1))
sketch1.addConstraint(Sketcher.Constraint("Coincident", 39, 3, -1, 1))
sketch1.addConstraint(Sketcher.Constraint("Coincident", 43, 3, -1, 1))
sketch1.addConstraint(Sketcher.Constraint("Coincident", 47, 3, -1, 1))
sketch1.addConstraint(Sketcher.Constraint("Coincident", 51, 3, -1, 1))
sketch1.addConstraint(Sketcher.Constraint("Coincident", 55, 3, -1, 1))
sketch1.addConstraint(Sketcher.Constraint("Coincident", 59, 3, -1, 1))
sketch1.addConstraint(Sketcher.Constraint("Coincident", 63, 3, -1, 1))
sketch1.addConstraint(Sketcher.Constraint("Coincident", 67, 3, -1, 1))
sketch1.addConstraint(Sketcher.Constraint("Coincident", 71, 3, -1, 1))
sketch1.addConstraint(Sketcher.Constraint("Coincident", 75, 3, -1, 1))
sketch1.addConstraint(Sketcher.Constraint("Coincident", 79, 3, -1, 1))
sketch1.addConstraint(Sketcher.Constraint("Equal", 3, 7))
sketch1.addConstraint(Sketcher.Constraint("Equal", 7, 11))
sketch1.addConstraint(Sketcher.Constraint("Equal", 11, 15))
sketch1.addConstraint(Sketcher.Constraint("Equal", 15, 19))
sketch1.addConstraint(Sketcher.Constraint("Equal", 19, 23))
sketch1.addConstraint(Sketcher.Constraint("Equal", 23, 27))
sketch1.addConstraint(Sketcher.Constraint("Equal", 27, 31))
sketch1.addConstraint(Sketcher.Constraint("Equal", 31, 35))
sketch1.addConstraint(Sketcher.Constraint("Equal", 35, 39))
sketch1.addConstraint(Sketcher.Constraint("Equal", 39, 43))
sketch1.addConstraint(Sketcher.Constraint("Equal", 43, 47))
sketch1.addConstraint(Sketcher.Constraint("Equal", 47, 51))
sketch1.addConstraint(Sketcher.Constraint("Equal", 51, 55))
sketch1.addConstraint(Sketcher.Constraint("Equal", 55, 59))
sketch1.addConstraint(Sketcher.Constraint("Equal", 59, 63))
sketch1.addConstraint(Sketcher.Constraint("Equal", 63, 67))
sketch1.addConstraint(Sketcher.Constraint("Equal", 67, 71))
sketch1.addConstraint(Sketcher.Constraint("Equal", 71, 75))
sketch1.addConstraint(Sketcher.Constraint("Equal", 75, 79))
sketch1.addConstraint(Sketcher.Constraint("Symmetric", 0, 2, 40, 2, -1, 1))
sketch1.addConstraint(Sketcher.Constraint("Symmetric", 4, 2, 44, 2, -1, 1))
sketch1.addConstraint(Sketcher.Constraint("Symmetric", 5, 2, 45, 2, -1, 1))
sketch1.addConstraint(Sketcher.Constraint("Symmetric", 8, 2, 48, 2, -1, 1))
sketch1.addConstraint(Sketcher.Constraint("Symmetric", 9, 2, 49, 2, -1, 1))
sketch1.addConstraint(Sketcher.Constraint("Symmetric", 12, 2, 52, 2, -1, 1))
sketch1.addConstraint(Sketcher.Constraint("Symmetric", 13, 2, 53, 2, -1, 1))
sketch1.addConstraint(Sketcher.Constraint("Symmetric", 16, 2, 56, 2, -1, 1))
sketch1.addConstraint(Sketcher.Constraint("Symmetric", 17, 2, 57, 2, -1, 1))
sketch1.addConstraint(Sketcher.Constraint("Symmetric", 20, 2, 60, 2, -1, 1))
sketch1.addConstraint(Sketcher.Constraint("Symmetric", 24, 2, 64, 2, -1, 1))
sketch1.addConstraint(Sketcher.Constraint("Symmetric", 25, 2, 65, 2, -1, 1))
sketch1.addConstraint(Sketcher.Constraint("Symmetric", 28, 2, 68, 2, -1, 1))
sketch1.addConstraint(Sketcher.Constraint("Symmetric", 29, 2, 69, 2, -1, 1))
sketch1.addConstraint(Sketcher.Constraint("Symmetric", 32, 2, 72, 2, -1, 1))
sketch1.addConstraint(Sketcher.Constraint("Symmetric", 33, 2, 73, 2, -1, 1))
sketch1.addConstraint(Sketcher.Constraint("Symmetric", 36, 2, 76, 2, -1, 1))
sketch1.addConstraint(Sketcher.Constraint("Symmetric", 37, 2, 77, 2, -1, 1))
sketch1.addConstraint(Sketcher.Constraint("Symmetric", 37, 2, 44, 2, -2))
sketch1.addConstraint(Sketcher.Constraint("Symmetric", 36, 2, 45, 2, -2))
sketch1.addConstraint(Sketcher.Constraint("Symmetric", 33, 2, 48, 2, -2))
sketch1.addConstraint(Sketcher.Constraint("Symmetric", 32, 2, 49, 2, -2))
sketch1.addConstraint(Sketcher.Constraint("Symmetric", 29, 2, 52, 2, -2))
sketch1.addConstraint(Sketcher.Constraint("Symmetric", 28, 2, 53, 2, -2))
sketch1.addConstraint(Sketcher.Constraint("Symmetric", 25, 2, 56, 2, -2))
sketch1.addConstraint(Sketcher.Constraint("Symmetric", 24, 2, 57, 2, -2))
sketch1.addConstraint(Sketcher.Constraint("Perpendicular", 4, 5))
sketch1.addConstraint(Sketcher.Constraint("Perpendicular", 5, 6))
sketch1.addConstraint(Sketcher.Constraint("Perpendicular", 8, 9))
sketch1.addConstraint(Sketcher.Constraint("Perpendicular", 9, 10))
sketch1.addConstraint(Sketcher.Constraint("Perpendicular", 12, 13))
sketch1.addConstraint(Sketcher.Constraint("Perpendicular", 13, 14))
sketch1.addConstraint(Sketcher.Constraint("Perpendicular", 16, 17))
sketch1.addConstraint(Sketcher.Constraint("Perpendicular", 17, 18))
sketch1.addConstraint(Sketcher.Constraint("Perpendicular", 6, 24))
sketch1.addConstraint(Sketcher.Constraint("Perpendicular", 24, 25))
sketch1.addConstraint(Sketcher.Constraint("Perpendicular", 25, 26))
sketch1.addConstraint(Sketcher.Constraint("Perpendicular", 10, 28))
sketch1.addConstraint(Sketcher.Constraint("Perpendicular", 28, 29))
sketch1.addConstraint(Sketcher.Constraint("Perpendicular", 29, 30))
sketch1.addConstraint(Sketcher.Constraint("Perpendicular", 14, 32))
sketch1.addConstraint(Sketcher.Constraint("Perpendicular", 33, 34))
sketch1.addConstraint(Sketcher.Constraint("Perpendicular", 18, 36))
sketch1.addConstraint(Sketcher.Constraint("Perpendicular", 37, 38))
sketch1.addConstraint(Sketcher.Constraint("Perpendicular", 26, 44))
sketch1.addConstraint(Sketcher.Constraint("Perpendicular", 45, 46))
sketch1.addConstraint(Sketcher.Constraint("Perpendicular", 30, 48))
sketch1.addConstraint(Sketcher.Constraint("Perpendicular", 49, 50))
sketch1.addConstraint(Sketcher.Constraint("Perpendicular", 34, 52))
sketch1.addConstraint(Sketcher.Constraint("Perpendicular", 53, 54))
sketch1.addConstraint(Sketcher.Constraint("Perpendicular", 38, 56))
sketch1.addConstraint(Sketcher.Constraint("Perpendicular", 57, 58))
sketch1.addConstraint(Sketcher.Constraint("Perpendicular", 46, 64))
sketch1.addConstraint(Sketcher.Constraint("Perpendicular", 65, 66))
sketch1.addConstraint(Sketcher.Constraint("Perpendicular", 50, 68))
sketch1.addConstraint(Sketcher.Constraint("Perpendicular", 69, 70))
sketch1.addConstraint(Sketcher.Constraint("Perpendicular", 54, 72))
sketch1.addConstraint(Sketcher.Constraint("Perpendicular", 73, 74))
sketch1.addConstraint(Sketcher.Constraint("Perpendicular", 58, 76))
sketch1.addConstraint(Sketcher.Constraint("Perpendicular", 77, 78))
sketch1.addConstraint(Sketcher.Constraint("Horizontal", 39, 2, 42, 2))
sketch1.addConstraint(Sketcher.Constraint("Horizontal", 22, 2, 59, 2))
sketch1.addConstraint(Sketcher.Constraint("Horizontal", 20, 2, 61, 2))
sketch1.addConstraint(Sketcher.Constraint("Horizontal", 2, 2, 79, 2))
sketch1.addConstraint(Sketcher.Constraint("Equal", 62, 0))
sketch1.addConstraint(Sketcher.Constraint("Equal", 41, 21))
sketch1.addConstraint(Sketcher.Constraint("Equal", 4, 6))
sketch1.addConstraint(Sketcher.Constraint("Equal", 6, 8))
sketch1.addConstraint(Sketcher.Constraint("Equal", 5, 9))
sketch1.addConstraint(Sketcher.Constraint("Equal", 8, 10))
sketch1.addConstraint(Sketcher.Constraint("Equal", 10, 12))
sketch1.addConstraint(Sketcher.Constraint("Equal", 9, 13))
sketch1.addConstraint(Sketcher.Constraint("Equal", 12, 14))
sketch1.addConstraint(Sketcher.Constraint("Equal", 14, 16))
sketch1.addConstraint(Sketcher.Constraint("Equal", 13, 17))
sketch1.addConstraint(Sketcher.Constraint("Equal", 16, 18))
sketch1.addConstraint(Sketcher.Constraint("Angle", 4, Q("108 deg")))
sketch1.addConstraint(Sketcher.Constraint("Angle", 8, Q("126 deg")))
sketch1.addConstraint(Sketcher.Constraint("Radius", 3, Q("52.675533 mm")))
sketch1.addConstraint(Sketcher.Constraint("DistanceX", 1, 2, 1, 1, Q("11.512231 mm")))
sketch1.addConstraint(Sketcher.Constraint("DistanceX", 20, 2, 20, 1, Q("6.640091 mm")))
sketch1.addConstraint(Sketcher.Constraint("Distance", 4, Q("6.640091 mm")))
sketch1.addConstraint(Sketcher.Constraint("Distance", 5, Q("11.512231 mm")))
pad1 = doc.addObject("PartDesign::Pad", "Pad")
body.addObject(pad1)
pad1.Profile = sketch1
pad1.setExpression("Length", "Params.pad1_length")

doc.recompute()
